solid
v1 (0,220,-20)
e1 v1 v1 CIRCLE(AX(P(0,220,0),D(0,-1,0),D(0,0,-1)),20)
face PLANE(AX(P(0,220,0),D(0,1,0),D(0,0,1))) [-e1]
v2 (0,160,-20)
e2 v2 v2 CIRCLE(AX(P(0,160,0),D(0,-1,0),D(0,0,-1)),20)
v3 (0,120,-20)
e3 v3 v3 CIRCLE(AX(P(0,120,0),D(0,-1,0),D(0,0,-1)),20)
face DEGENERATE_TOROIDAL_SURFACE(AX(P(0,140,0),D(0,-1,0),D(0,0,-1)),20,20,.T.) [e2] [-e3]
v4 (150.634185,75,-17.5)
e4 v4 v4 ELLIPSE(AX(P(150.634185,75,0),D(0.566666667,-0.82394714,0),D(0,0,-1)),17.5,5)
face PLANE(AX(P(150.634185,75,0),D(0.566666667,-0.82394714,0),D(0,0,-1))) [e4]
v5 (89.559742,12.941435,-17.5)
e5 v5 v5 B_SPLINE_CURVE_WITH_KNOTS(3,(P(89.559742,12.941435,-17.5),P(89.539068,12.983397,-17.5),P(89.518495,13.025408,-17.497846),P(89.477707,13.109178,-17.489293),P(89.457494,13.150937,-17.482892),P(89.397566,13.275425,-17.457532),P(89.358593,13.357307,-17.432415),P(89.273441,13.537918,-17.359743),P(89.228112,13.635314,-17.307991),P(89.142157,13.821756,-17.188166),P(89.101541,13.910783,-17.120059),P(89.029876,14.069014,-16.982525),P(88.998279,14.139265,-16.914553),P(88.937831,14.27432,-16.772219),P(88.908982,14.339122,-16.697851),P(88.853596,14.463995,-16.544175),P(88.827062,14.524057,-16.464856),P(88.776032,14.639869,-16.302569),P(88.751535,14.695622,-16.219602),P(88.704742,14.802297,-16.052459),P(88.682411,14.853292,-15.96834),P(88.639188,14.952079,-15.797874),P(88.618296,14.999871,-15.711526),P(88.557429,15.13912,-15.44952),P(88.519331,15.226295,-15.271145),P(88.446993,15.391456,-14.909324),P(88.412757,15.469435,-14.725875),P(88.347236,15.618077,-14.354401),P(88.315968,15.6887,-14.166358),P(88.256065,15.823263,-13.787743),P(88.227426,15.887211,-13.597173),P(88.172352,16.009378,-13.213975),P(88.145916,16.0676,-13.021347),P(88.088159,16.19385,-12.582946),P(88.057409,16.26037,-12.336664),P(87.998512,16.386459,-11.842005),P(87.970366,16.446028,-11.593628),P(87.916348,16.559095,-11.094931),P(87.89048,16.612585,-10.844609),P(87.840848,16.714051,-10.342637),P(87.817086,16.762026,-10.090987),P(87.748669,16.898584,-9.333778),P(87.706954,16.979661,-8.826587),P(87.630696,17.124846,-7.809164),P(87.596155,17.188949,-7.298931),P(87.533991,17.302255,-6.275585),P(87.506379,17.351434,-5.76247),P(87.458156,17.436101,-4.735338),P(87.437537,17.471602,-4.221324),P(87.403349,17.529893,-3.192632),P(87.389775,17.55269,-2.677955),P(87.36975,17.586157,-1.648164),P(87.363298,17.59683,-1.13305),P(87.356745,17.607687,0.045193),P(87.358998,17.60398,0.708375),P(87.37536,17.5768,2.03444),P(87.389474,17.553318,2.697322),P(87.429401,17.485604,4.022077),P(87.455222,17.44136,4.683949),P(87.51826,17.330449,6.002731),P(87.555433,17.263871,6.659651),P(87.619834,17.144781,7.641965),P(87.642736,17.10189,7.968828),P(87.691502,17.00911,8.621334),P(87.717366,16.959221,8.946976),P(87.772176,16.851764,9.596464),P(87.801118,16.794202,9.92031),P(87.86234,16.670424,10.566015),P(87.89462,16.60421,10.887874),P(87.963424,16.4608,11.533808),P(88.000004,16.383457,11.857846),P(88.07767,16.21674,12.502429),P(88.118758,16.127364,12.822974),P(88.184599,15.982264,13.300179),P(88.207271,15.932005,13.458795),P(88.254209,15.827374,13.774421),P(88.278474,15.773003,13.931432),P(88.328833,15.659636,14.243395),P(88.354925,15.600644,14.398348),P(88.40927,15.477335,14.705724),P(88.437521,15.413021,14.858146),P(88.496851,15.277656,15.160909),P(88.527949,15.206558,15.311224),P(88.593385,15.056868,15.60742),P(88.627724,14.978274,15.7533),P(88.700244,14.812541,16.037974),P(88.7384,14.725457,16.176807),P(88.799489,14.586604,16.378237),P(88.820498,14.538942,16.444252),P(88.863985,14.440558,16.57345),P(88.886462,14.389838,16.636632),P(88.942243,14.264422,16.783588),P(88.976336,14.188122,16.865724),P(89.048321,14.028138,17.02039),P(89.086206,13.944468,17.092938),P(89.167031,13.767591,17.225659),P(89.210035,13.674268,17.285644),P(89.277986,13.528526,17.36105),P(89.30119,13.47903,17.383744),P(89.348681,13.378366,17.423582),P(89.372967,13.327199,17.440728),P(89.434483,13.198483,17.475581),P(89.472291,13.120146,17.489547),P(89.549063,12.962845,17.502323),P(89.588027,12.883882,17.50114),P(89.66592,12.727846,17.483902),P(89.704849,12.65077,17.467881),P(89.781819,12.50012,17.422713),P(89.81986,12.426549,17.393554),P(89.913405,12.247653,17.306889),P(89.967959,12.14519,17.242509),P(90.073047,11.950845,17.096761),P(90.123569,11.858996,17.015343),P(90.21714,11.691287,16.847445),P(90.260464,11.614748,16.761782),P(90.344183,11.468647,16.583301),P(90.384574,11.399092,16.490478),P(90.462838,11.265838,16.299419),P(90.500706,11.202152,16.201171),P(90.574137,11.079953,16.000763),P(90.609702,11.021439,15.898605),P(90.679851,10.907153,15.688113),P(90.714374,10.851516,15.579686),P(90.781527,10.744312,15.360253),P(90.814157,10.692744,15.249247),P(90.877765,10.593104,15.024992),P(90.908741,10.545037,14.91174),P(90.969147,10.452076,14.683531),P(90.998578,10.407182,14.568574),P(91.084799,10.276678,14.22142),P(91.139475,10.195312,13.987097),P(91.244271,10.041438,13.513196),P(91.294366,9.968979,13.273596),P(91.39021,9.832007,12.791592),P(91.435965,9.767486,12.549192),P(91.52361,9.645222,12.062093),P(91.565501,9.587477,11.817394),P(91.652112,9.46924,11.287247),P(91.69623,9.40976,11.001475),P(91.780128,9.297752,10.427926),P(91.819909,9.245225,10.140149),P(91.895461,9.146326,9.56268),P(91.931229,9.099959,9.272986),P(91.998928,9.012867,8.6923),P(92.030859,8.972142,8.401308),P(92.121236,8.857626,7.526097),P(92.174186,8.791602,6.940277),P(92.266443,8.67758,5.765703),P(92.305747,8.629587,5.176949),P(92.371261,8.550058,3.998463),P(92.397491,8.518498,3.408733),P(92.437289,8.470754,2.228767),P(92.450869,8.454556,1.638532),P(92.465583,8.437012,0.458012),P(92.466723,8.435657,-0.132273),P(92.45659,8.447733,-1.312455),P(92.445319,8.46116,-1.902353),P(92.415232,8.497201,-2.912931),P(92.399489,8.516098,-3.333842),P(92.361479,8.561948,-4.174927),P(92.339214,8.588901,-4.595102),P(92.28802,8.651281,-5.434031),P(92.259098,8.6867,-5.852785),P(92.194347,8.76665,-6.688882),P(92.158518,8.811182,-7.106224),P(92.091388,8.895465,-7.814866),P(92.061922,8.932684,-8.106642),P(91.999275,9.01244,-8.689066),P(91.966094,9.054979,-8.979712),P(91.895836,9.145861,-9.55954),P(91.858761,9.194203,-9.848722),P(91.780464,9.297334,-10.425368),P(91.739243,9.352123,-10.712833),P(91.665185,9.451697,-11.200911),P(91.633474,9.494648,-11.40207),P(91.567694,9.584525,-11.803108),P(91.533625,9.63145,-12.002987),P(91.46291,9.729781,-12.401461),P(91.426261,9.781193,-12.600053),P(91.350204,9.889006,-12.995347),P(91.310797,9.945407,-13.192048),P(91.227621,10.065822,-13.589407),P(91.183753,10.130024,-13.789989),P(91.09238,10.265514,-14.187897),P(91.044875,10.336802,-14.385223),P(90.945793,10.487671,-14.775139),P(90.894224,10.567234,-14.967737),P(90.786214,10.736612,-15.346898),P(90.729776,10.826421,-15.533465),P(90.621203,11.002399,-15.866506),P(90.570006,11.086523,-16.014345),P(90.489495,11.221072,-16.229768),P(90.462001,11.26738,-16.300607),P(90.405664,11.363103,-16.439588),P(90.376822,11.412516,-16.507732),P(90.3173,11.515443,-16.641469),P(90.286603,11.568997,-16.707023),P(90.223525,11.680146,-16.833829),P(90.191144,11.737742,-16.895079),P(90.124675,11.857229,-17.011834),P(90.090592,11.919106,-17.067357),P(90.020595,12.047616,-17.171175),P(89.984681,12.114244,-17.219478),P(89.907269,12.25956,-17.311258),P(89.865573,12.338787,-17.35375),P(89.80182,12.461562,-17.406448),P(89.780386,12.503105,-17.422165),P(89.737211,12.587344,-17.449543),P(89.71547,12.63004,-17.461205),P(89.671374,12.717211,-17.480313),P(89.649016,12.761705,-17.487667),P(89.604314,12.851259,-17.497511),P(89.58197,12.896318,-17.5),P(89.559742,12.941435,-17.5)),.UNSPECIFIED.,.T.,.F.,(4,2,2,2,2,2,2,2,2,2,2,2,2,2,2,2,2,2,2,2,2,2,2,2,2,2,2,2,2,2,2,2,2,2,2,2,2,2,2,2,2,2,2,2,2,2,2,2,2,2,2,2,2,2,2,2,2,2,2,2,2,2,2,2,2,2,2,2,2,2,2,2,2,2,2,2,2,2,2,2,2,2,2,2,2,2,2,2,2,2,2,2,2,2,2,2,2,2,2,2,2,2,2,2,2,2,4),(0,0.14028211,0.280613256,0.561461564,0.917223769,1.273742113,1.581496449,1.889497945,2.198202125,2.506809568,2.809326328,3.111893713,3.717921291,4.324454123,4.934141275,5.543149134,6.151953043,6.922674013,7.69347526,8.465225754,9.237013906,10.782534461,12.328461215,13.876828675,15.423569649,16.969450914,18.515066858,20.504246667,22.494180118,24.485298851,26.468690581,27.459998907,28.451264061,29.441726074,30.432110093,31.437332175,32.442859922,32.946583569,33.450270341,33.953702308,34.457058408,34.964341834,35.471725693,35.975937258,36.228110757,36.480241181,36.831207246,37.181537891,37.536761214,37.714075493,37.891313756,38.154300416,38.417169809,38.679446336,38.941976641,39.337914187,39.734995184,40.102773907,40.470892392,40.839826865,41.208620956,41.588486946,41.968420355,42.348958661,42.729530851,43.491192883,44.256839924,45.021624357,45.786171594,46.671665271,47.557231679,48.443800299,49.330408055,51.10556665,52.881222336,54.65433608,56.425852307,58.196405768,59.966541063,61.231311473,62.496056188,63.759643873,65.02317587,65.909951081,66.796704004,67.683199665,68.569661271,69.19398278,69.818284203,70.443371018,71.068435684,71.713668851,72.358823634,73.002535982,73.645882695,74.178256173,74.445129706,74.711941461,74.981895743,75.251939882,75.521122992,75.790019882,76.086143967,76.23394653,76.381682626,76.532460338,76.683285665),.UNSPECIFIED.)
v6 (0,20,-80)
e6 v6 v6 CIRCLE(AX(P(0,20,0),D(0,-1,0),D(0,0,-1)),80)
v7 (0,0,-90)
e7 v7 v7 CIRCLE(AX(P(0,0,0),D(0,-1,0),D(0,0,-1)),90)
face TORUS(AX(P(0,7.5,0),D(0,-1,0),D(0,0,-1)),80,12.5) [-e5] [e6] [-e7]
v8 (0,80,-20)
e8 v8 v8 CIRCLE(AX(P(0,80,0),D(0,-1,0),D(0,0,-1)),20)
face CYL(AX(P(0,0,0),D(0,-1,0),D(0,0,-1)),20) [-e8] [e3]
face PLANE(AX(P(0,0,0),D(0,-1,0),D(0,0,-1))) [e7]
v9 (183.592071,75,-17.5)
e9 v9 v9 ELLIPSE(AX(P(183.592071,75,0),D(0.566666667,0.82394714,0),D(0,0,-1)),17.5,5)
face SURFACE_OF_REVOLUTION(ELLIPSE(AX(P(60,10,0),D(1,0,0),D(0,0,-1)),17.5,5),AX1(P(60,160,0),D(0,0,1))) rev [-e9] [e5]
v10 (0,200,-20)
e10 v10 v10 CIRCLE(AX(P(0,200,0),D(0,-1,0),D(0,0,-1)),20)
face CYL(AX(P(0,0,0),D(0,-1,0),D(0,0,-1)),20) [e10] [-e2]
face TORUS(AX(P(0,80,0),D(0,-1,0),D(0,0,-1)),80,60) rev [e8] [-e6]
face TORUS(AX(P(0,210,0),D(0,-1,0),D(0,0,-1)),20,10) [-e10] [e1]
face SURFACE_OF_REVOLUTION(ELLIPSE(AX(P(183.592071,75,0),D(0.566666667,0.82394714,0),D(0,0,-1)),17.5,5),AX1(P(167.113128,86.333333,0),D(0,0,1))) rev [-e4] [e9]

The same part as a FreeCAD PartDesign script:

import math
import FreeCAD as App
import Part
import Sketcher
from FreeCAD import Vector
Q = App.Units.Quantity

doc = App.newDocument("Part")
body = doc.addObject("PartDesign::Body", "Body")

sketch1 = body.newObject("Sketcher::SketchObject", "Sketch")
sketch1.AttachmentSupport = (doc.getObject("XY_Plane"), [""])
sketch1.MapMode = "FlatFace"
sketch1.addGeometry(Part.LineSegment(Vector(0, 0, 0), Vector(90, 0, 0)), False)
sketch1.addGeometry(Part.ArcOfCircle(Part.Circle(Vector(80, 8, 0), Vector(0, 0, 1), 12), math.radians(-37), math.radians(90)), False)
sketch1.addGeometry(Part.ArcOfCircle(Part.Circle(Vector(80, 80, 0), Vector(0, 0, 1), 60), math.radians(-180), math.radians(-90)), False)
sketch1.addGeometry(Part.LineSegment(Vector(20, 80, 0), Vector(20, 120, 0)), False)
sketch1.addGeometry(Part.ArcOfCircle(Part.Circle(Vector(20, 140, 0), Vector(0, 0, 1), 20), math.radians(-90), math.radians(90)), False)
sketch1.addGeometry(Part.LineSegment(Vector(20, 160, 0), Vector(20, 200, 0)), False)
sketch1.addGeometry(Part.ArcOfCircle(Part.Circle(Vector(20, 210, 0), Vector(0, 0, 1), 10), math.radians(-90), math.radians(90)), False)
sketch1.addGeometry(Part.LineSegment(Vector(20, 220, 0), Vector(0, 220, 0)), False)
sketch1.addGeometry(Part.LineSegment(Vector(0, 220, 0), Vector(0, 0, 0)), False)
sketch1.addConstraint(Sketcher.Constraint("Coincident", 0, 2, 1, 1))
sketch1.addConstraint(Sketcher.Constraint("Tangent", 1, 2, 2, 2))
sketch1.addConstraint(Sketcher.Constraint("Tangent", 2, 1, 3, 1))
sketch1.addConstraint(Sketcher.Constraint("Coincident", 3, 2, 4, 1))
sketch1.addConstraint(Sketcher.Constraint("Coincident", 4, 2, 5, 1))
sketch1.addConstraint(Sketcher.Constraint("Coincident", 5, 2, 6, 1))
sketch1.addConstraint(Sketcher.Constraint("Tangent", 6, 2, 7, 1))
sketch1.addConstraint(Sketcher.Constraint("Coincident", 7, 2, 8, 1))
sketch1.addConstraint(Sketcher.Constraint("Coincident", 8, 2, 0, 1))
sketch1.addConstraint(Sketcher.Constraint("Horizontal", 0))
sketch1.addConstraint(Sketcher.Constraint("Vertical", 3))
sketch1.addConstraint(Sketcher.Constraint("Vertical", 5))
sketch1.addConstraint(Sketcher.Constraint("Horizontal", 7))
sketch1.addConstraint(Sketcher.Constraint("Vertical", 8))
sketch1.addConstraint(Sketcher.Constraint("Coincident", 8, 2, -1, 1))
sketch1.addConstraint(Sketcher.Constraint("Vertical", 1, 3, 2, 3))
sketch1.addConstraint(Sketcher.Constraint("Vertical", 4, 3, 6, 3))
sketch1.addConstraint(Sketcher.Constraint("Vertical", 6, 3, 2, 1))
sketch1.addConstraint(Sketcher.Constraint("Vertical", 3, 2, 4, 2))
sketch1.addConstraint(Sketcher.Constraint("Equal", 3, 5))
sketch1.addConstraint(Sketcher.Constraint("Radius", 2, Q("60 mm")))
sketch1.addConstraint(Sketcher.Constraint("Radius", 4, Q("20 mm")))
sketch1.addConstraint(Sketcher.Constraint("Radius", 6, Q("10 mm")))
sketch1.addConstraint(Sketcher.Constraint("Radius", 1, Q("12.5 mm")))
sketch1.addConstraint(Sketcher.Constraint("DistanceX", 0, 1, 0, 2, Q("90 mm")))
sketch1.addConstraint(Sketcher.Constraint("DistanceX", 7, 2, 7, 1, Q("20 mm")))
sketch1.addConstraint(Sketcher.Constraint("DistanceY", 3, 1, 3, 2, Q("40 mm")))
revolution = body.newObject("PartDesign::Revolution", "Revolution")
revolution.Profile = sketch1
revolution.ReferenceAxis = (sketch1, ["V_Axis"])
revolution.Angle = 360

sketch2 = body.newObject("Sketcher::SketchObject", "Sketch001")
sketch2.AttachmentSupport = (doc.getObject("YZ_Plane"), [""])
sketch2.MapMode = "FlatFace"
sketch2.addGeometry(Part.Ellipse(Vector(10, -17.5, 0), Vector(15, 0, 0), Vector(10, 0, 0)), False)
sketch2.addConstraint(Sketcher.Constraint("Block", 0))

sketch3 = body.newObject("Sketcher::SketchObject", "Sketch002")
sketch3.AttachmentSupport = (doc.getObject("XY_Plane"), [""])
sketch3.MapMode = "FlatFace"
sketch3.addGeometry(Part.LineSegment(Vector(0, 10, 0), Vector(60, 10, 0)), False)
sketch3.addGeometry(Part.ArcOfCircle(Part.Circle(Vector(60, 160, 0), Vector(0, 0, 1), 150), math.radians(-90), math.radians(-35)), False)
sketch3.addGeometry(Part.ArcOfCircle(Part.Circle(Vector(167, 86, 0), Vector(0, 0, 1), 20), math.radians(-35), math.radians(215)), False)
sketch3.addConstraint(Sketcher.Constraint("Tangent", 0, 2, 1, 1))
sketch3.addConstraint(Sketcher.Constraint("Tangent", 1, 2, 2, 1))
sketch3.addConstraint(Sketcher.Constraint("Horizontal", 0))
sketch3.addConstraint(Sketcher.Constraint("PointOnObject", 0, 1, -2))
sketch3.addConstraint(Sketcher.Constraint("Horizontal", 1, 2, 2, 2))
sketch3.addConstraint(Sketcher.Constraint("Radius", 1, Q("150 mm")))
sketch3.addConstraint(Sketcher.Constraint("Radius", 2, Q("20 mm")))
sketch3.addConstraint(Sketcher.Constraint("DistanceX", 0, 1, 0, 2, Q("60 mm")))
sketch3.addConstraint(Sketcher.Constraint("DistanceY", -1, 1, 1, 3, Q("160 mm")))
sketch3.addConstraint(Sketcher.Constraint("DistanceY", -1, 1, 1, 2, Q("75 mm")))
doc.recompute()

additivepipe = body.newObject("PartDesign::AdditivePipe", "AdditivePipe")
additivepipe.Profile = sketch2
additivepipe.Spine = (sketch3, ["Edge1", "Edge2", "Edge3"])

doc.recompute()
